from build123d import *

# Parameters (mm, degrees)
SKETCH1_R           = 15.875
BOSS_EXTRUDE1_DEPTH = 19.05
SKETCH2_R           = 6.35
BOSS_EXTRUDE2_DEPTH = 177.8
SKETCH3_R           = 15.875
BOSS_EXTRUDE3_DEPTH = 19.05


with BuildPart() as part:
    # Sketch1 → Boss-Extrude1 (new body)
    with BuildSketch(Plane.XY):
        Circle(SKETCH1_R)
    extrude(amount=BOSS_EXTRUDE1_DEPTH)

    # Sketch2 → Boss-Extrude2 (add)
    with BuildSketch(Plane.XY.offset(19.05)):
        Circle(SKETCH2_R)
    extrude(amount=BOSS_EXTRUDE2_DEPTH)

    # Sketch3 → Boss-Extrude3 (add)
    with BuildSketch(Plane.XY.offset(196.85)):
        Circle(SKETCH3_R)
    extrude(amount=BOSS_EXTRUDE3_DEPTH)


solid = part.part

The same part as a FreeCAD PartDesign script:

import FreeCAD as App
import Part
import Sketcher
from FreeCAD import Vector
Q = App.Units.Quantity

doc = App.newDocument("Part")
params = doc.addObject("Spreadsheet::Sheet", "Params")
for row, (alias, value) in enumerate([
    ("sketch1_diameter", "1.25 in"),
    ("pad1_length", "0.75 in"),
    ("sketch2_diameter", "0.5 in"),
    ("pad2_length", "7 in"),
    ("sketch3_diameter", "1.25 in"),
    ("pad3_length", "0.75 in"),
], start=1):
    params.set(f"A{row}", alias)
    params.set(f"B{row}", "=" + value)
    params.setAlias(f"B{row}", alias)

body = doc.addObject("PartDesign::Body", "Body")

# Sketch on XY plane
sketch1 = doc.addObject("Sketcher::SketchObject", "Sketch")
body.addObject(sketch1)
sketch1.AttachmentSupport = (doc.XY_Plane, [""])
sketch1.MapMode = "FlatFace"
sketch1.addGeometry(Part.Circle(Vector(0, 0, 0), Vector(0, 0, 1), 16), False)
sketch1.addConstraint([
    Sketcher.Constraint("Coincident", 0, 3, -1, 1),
    Sketcher.Constraint("Diameter", 0, Q("1.25 in")),
])
sketch1.setExpression("Constraints[1]", "Params.sketch1_diameter")
pad1 = doc.addObject("PartDesign::Pad", "Pad")
body.addObject(pad1)
pad1.Profile = sketch1
pad1.setExpression("Length", "Params.pad1_length")

# Sketch on XY plane
sketch2 = doc.addObject("Sketcher::SketchObject", "Sketch001")
body.addObject(sketch2)
sketch2.AttachmentSupport = (doc.XY_Plane, [""])
sketch2.MapMode = "FlatFace"
sketch2.AttachmentOffset = App.Placement(Vector(0, 0, 0.75 * 25.4), App.Rotation())
sketch2.addGeometry(Part.Circle(Vector(0, 0, 0), Vector(0, 0, 1), 6), False)
sketch2.addConstraint([
    Sketcher.Constraint("Coincident", 0, 3, -1, 1),
    Sketcher.Constraint("Diameter", 0, Q("0.5 in")),
])
sketch2.setExpression("Constraints[1]", "Params.sketch2_diameter")
pad2 = doc.addObject("PartDesign::Pad", "Pad001")
body.addObject(pad2)
pad2.Profile = sketch2
pad2.setExpression("Length", "Params.pad2_length")

# Sketch on XY plane
sketch3 = doc.addObject("Sketcher::SketchObject", "Sketch002")
body.addObject(sketch3)
sketch3.AttachmentSupport = (doc.XY_Plane, [""])
sketch3.MapMode = "FlatFace"
sketch3.AttachmentOffset = App.Placement(Vector(0, 0, 7.75 * 25.4), App.Rotation())
sketch3.addGeometry(Part.Circle(Vector(0, 0, 0), Vector(0, 0, 1), 16), False)
sketch3.addConstraint([
    Sketcher.Constraint("Coincident", 0, 3, -1, 1),
    Sketcher.Constraint("Diameter", 0, Q("1.25 in")),
])
sketch3.setExpression("Constraints[1]", "Params.sketch3_diameter")
pad3 = doc.addObject("PartDesign::Pad", "Pad002")
body.addObject(pad3)
pad3.Profile = sketch3
pad3.setExpression("Length", "Params.pad3_length")

doc.recompute()
